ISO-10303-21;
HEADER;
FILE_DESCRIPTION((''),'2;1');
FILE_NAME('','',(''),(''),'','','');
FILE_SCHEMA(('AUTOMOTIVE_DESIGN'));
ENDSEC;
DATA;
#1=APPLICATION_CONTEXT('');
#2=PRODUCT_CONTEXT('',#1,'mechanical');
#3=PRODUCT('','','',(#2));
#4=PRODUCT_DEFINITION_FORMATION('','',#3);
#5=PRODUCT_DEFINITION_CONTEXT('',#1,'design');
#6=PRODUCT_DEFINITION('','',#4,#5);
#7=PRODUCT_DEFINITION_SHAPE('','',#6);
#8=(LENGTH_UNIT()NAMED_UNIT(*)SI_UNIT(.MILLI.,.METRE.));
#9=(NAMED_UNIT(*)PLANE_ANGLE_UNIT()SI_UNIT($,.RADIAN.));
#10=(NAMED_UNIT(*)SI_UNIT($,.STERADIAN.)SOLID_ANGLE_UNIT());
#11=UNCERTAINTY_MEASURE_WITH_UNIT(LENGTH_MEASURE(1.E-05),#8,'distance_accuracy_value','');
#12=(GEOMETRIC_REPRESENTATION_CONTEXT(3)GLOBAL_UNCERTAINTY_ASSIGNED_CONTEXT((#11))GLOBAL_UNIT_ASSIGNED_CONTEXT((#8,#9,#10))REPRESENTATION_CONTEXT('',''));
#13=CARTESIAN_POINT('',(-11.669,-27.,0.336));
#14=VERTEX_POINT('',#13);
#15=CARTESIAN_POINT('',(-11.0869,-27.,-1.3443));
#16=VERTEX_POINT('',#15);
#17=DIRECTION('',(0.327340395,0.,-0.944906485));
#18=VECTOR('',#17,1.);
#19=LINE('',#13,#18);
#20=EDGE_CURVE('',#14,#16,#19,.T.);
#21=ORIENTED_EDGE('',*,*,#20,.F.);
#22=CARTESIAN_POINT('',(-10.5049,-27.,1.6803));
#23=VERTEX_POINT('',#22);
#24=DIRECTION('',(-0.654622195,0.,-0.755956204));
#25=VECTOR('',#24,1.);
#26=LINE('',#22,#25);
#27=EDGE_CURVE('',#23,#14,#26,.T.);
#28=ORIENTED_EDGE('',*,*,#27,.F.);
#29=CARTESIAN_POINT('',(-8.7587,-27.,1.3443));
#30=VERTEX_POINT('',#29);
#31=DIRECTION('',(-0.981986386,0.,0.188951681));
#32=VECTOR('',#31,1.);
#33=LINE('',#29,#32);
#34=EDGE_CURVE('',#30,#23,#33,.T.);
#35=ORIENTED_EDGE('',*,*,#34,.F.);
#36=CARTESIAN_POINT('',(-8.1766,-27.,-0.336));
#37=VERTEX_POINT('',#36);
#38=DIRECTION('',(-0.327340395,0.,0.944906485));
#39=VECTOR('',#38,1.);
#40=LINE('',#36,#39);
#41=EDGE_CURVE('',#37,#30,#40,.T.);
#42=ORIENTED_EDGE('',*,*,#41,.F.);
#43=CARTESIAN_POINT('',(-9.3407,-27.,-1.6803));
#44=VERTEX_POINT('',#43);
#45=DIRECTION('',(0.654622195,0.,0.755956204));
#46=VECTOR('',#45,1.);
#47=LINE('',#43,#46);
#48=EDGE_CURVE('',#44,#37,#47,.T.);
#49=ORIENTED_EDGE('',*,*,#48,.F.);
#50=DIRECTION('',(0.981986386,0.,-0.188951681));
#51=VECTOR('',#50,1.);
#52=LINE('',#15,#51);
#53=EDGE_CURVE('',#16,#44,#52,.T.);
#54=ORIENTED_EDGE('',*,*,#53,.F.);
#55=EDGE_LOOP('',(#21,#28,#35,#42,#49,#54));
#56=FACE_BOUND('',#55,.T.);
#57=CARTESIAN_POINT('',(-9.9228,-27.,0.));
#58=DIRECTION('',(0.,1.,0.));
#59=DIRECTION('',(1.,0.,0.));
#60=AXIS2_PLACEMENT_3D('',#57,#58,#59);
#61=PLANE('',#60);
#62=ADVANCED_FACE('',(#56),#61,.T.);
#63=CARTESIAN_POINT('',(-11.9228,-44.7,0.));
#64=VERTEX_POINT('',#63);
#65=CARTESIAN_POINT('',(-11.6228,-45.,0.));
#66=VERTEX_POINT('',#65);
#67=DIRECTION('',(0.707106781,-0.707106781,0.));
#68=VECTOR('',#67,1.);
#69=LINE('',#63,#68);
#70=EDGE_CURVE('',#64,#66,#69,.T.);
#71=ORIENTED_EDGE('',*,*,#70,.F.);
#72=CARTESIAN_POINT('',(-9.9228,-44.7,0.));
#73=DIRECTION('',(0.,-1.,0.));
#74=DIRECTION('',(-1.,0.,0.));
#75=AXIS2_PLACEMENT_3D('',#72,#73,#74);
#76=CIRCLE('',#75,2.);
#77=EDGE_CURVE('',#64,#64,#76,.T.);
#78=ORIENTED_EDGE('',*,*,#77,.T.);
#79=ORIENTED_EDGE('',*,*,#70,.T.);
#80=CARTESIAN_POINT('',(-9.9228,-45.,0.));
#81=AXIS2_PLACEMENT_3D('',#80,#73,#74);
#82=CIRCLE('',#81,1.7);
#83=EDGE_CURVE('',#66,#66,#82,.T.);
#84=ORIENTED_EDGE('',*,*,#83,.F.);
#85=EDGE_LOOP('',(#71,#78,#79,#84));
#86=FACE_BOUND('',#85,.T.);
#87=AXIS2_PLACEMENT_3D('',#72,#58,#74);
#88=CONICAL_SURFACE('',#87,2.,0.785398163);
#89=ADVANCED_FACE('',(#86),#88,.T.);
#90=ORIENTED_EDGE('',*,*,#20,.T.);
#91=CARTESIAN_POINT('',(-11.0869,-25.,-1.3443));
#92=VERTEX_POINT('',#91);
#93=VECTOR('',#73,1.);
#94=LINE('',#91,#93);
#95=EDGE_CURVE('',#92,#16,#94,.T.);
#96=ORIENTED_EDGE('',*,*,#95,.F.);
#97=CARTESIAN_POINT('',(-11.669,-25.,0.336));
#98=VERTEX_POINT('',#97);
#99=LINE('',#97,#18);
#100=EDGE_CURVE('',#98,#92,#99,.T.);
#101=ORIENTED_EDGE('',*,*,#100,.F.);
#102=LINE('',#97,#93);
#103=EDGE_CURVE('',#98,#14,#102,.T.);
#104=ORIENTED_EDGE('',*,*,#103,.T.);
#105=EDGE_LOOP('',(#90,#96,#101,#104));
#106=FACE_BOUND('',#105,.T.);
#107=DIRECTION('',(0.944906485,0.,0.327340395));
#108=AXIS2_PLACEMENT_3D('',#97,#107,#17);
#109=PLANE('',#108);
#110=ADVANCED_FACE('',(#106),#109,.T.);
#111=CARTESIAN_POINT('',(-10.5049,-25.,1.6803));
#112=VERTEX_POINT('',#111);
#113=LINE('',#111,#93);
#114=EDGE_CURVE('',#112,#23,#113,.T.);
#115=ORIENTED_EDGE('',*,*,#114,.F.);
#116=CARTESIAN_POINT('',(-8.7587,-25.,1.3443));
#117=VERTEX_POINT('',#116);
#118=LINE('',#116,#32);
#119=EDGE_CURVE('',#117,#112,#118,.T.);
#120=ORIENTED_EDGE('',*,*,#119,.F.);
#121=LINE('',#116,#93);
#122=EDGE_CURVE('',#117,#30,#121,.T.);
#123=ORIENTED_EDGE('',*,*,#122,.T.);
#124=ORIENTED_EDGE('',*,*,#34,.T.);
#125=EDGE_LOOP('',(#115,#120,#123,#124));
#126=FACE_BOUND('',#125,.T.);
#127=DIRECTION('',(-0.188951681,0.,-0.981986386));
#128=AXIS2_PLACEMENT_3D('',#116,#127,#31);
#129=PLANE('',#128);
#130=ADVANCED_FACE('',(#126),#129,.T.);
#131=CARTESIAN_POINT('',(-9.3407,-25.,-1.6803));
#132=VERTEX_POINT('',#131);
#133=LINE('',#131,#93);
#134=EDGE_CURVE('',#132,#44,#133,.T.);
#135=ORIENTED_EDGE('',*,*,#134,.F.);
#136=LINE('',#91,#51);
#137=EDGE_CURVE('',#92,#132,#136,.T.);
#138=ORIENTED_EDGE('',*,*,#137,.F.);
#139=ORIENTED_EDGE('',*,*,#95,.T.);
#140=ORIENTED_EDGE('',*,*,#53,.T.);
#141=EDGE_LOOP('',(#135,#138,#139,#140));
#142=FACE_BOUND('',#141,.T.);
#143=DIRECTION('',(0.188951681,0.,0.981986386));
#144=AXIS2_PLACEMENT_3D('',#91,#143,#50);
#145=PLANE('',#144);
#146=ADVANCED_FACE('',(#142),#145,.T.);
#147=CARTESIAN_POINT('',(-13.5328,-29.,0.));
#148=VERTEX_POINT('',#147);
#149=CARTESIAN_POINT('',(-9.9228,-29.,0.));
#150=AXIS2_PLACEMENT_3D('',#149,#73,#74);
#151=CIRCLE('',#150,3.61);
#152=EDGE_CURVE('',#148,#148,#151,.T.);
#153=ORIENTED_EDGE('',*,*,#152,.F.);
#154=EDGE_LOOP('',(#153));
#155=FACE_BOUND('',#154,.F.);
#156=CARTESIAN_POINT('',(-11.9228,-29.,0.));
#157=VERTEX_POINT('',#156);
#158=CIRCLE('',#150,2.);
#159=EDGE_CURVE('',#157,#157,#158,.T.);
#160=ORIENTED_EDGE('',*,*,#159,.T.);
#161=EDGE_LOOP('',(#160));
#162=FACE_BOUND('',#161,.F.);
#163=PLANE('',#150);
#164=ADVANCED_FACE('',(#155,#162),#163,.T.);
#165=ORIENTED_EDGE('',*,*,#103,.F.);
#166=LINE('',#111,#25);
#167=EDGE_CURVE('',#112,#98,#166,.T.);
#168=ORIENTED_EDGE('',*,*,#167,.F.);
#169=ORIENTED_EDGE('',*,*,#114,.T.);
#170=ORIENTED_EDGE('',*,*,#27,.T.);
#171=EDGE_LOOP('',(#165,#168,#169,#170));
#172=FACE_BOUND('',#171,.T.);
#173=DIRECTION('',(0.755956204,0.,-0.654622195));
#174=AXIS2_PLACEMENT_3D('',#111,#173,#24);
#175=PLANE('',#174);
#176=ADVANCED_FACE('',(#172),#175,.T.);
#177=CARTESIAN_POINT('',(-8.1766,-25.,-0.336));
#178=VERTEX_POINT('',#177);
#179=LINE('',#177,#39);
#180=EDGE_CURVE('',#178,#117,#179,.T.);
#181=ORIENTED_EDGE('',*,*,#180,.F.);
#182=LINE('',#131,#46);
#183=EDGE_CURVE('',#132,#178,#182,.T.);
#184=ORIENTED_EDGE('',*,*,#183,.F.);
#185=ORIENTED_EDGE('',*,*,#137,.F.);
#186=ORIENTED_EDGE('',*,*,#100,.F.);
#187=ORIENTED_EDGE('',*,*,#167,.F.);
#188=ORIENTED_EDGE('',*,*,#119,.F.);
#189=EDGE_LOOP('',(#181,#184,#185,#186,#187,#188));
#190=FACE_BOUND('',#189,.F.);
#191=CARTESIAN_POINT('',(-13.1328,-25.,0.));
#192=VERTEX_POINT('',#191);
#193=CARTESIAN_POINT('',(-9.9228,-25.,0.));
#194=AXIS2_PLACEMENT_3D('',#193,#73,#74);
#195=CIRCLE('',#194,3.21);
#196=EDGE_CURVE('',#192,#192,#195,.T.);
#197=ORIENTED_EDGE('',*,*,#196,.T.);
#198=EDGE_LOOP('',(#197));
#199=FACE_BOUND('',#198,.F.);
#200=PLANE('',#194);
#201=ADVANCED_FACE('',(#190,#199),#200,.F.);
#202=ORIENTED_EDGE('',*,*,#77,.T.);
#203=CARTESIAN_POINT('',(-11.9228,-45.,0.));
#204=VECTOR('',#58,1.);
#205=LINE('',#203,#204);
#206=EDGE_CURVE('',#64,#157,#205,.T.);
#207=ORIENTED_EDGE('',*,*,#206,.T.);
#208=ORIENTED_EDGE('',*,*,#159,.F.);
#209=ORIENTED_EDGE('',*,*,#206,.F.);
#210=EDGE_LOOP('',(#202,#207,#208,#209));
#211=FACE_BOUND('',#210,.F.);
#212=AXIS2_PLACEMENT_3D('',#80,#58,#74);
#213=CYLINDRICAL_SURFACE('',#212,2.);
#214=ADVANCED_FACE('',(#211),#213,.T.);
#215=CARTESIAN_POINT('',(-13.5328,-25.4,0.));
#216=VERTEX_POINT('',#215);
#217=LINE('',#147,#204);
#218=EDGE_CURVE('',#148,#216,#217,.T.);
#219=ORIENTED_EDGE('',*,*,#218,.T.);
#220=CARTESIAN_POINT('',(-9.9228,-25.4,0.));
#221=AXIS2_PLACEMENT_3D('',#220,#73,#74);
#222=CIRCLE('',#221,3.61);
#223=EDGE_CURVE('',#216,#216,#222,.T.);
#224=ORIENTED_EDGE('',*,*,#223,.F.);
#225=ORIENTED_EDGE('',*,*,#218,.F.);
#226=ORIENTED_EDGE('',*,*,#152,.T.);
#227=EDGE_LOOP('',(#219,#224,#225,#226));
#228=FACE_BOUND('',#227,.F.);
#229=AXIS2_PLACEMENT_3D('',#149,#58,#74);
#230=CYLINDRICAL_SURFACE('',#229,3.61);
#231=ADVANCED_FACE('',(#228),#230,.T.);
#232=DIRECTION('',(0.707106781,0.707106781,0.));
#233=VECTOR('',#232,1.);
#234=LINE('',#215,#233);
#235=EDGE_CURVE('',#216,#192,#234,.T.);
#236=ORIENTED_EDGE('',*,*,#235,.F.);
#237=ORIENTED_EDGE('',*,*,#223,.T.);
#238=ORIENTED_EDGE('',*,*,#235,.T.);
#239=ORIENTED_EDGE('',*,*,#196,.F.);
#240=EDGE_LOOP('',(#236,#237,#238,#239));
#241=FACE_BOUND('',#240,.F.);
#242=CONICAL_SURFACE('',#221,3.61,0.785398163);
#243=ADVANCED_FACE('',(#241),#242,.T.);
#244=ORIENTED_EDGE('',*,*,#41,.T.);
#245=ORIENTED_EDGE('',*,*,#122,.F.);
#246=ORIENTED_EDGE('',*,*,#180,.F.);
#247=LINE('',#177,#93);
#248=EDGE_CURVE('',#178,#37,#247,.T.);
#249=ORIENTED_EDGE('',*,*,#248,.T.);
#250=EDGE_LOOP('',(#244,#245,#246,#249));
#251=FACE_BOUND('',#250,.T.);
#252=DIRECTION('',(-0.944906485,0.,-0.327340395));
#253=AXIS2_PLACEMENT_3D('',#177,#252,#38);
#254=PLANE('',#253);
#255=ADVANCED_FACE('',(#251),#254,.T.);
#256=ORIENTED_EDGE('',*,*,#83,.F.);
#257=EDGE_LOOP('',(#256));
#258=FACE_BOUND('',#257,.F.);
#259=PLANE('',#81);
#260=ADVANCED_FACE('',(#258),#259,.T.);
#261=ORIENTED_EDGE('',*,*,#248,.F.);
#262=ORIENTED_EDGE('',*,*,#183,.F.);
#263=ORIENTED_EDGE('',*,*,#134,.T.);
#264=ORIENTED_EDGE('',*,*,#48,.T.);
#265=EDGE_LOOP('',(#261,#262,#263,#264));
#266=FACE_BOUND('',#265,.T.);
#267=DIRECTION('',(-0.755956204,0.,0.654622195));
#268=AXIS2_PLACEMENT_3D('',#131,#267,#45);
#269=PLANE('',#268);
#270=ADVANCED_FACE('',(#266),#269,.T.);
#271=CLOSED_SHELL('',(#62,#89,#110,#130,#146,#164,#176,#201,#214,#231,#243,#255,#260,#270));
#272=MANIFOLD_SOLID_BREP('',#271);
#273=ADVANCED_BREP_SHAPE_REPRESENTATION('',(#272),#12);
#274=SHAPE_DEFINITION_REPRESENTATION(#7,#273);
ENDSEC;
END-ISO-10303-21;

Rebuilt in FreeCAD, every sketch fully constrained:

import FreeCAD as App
import Part
import Sketcher

V = App.Vector
Q = App.Units.Quantity


def edges_at(feature, points):
    """Names of the edges that pass closest to the given points."""
    edges = feature.Shape.Edges
    near = lambda p: min(range(len(edges)), key=lambda i: edges[i].distToShape(Part.Vertex(*p))[0])
    return sorted({f"Edge{near(p) + 1}" for p in points})


def add_polygon(sketch, points):
    """Adds a closed chain of lines whose ends are joined by coincident constraints."""
    first, n = sketch.GeometryCount, len(points)
    for a, b in zip(points, points[1:] + points[:1]):
        sketch.addGeometry(Part.LineSegment(App.Vector(*a, 0), App.Vector(*b, 0)), False)
    for i in range(n):
        sketch.addConstraint(Sketcher.Constraint("Coincident", first + i, 2, first + (i + 1) % n, 1))

doc = App.newDocument("Part")
body = doc.addObject("PartDesign::Body", "Body")

sketch1 = body.newObject("Sketcher::SketchObject", "Sketch")
sketch1.AttachmentSupport = (doc.getObject("XY_Plane"), [""])
sketch1.MapMode = "FlatFace"
add_polygon(sketch1, [(-9.9, -45), (-9.9, -25), (-13.5, -25), (-13.5, -29), (-11.9, -29), (-11.9, -45)])
sketch1.addGeometry(Part.LineSegment(V(-9.9, -25, 0), V(-9.9, -45, 0)), True)
sketch1.addConstraint([
    Sketcher.Constraint("Vertical", 0),
    Sketcher.Constraint("Horizontal", 1),
    Sketcher.Constraint("Vertical", 2),
    Sketcher.Constraint("Horizontal", 3),
    Sketcher.Constraint("Vertical", 4),
    Sketcher.Constraint("Horizontal", 5),
    Sketcher.Constraint("Vertical", 6),
    Sketcher.Constraint("Coincident", 6, 1, 0, 2),
    Sketcher.Constraint("Horizontal", 4, 2, 6, 2),
    Sketcher.Constraint("DistanceX", 5, 1, 5, 2, 2.0),
    Sketcher.Constraint("DistanceY", 2, 2, 2, 1, 4.0),
    Sketcher.Constraint("DistanceY", 4, 2, 4, 1, 16.0),
    Sketcher.Constraint("DistanceX", 1, 2, 1, 1, 3.61),
    Sketcher.Constraint("DistanceY", 0, 2, -1, 1, 25.0),
    Sketcher.Constraint("DistanceX", 0, 2, -1, 1, 9.9228),
])
revolution = body.newObject("PartDesign::Revolution", "Revolution")
revolution.Profile = sketch1
revolution.ReferenceAxis = (sketch1, ["Axis0"])
revolution.Angle = 360
doc.recompute()

chamfer = body.newObject("PartDesign::Chamfer", "Chamfer")
chamfer.Base = (revolution, edges_at(revolution, [(-6.313, -25, 0)]))
chamfer.Size = 0.4

sketch2 = body.newObject("Sketcher::SketchObject", "Sketch001")
sketch2.AttachmentSupport = (doc.getObject("XZ_Plane"), [""])
sketch2.MapMode = "FlatFace"
sketch2.AttachmentOffset = App.Placement(V(0, 0, 25), App.Rotation())
add_polygon(sketch2, [(-10.5, 1.7), (-8.8, 1.3), (-8.2, -0.3), (-9.3, -1.7), (-11.1, -1.3), (-11.7, 0.3)])
sketch2.addConstraint([
    Sketcher.Constraint("Parallel", 0, 3),
    Sketcher.Constraint("Parallel", 1, 4),
    Sketcher.Constraint("Parallel", 2, 5),
    Sketcher.Constraint("Equal", 0, 1),
    Sketcher.Constraint("Equal", 1, 2),
    Sketcher.Constraint("Equal", 2, 3),
    Sketcher.Constraint("Angle", 2, Q("-130.891 deg")),
    Sketcher.Constraint("DistanceY", 1, 2, -1, 1, 0.336),
    Sketcher.Constraint("DistanceX", 3, 2, -1, 1, 11.087),
    Sketcher.Constraint("DistanceX", 4, 2, -1, 1, 11.669),
    Sketcher.Constraint("DistanceY", -1, 1, 4, 2, 0.336),
    Sketcher.Constraint("DistanceX", 5, 2, -1, 1, 10.505),
])
pocket1 = body.newObject("PartDesign::Pocket", "Pocket")
pocket1.Profile = sketch2
pocket1.Length = 2
pocket1.Reversed = True
doc.recompute()

chamfer2 = body.newObject("PartDesign::Chamfer", "Chamfer001")
chamfer2.Base = (pocket1, edges_at(pocket1, [(-7.923, -45, 0)]))
chamfer2.Size = 0.3

doc.recompute()
